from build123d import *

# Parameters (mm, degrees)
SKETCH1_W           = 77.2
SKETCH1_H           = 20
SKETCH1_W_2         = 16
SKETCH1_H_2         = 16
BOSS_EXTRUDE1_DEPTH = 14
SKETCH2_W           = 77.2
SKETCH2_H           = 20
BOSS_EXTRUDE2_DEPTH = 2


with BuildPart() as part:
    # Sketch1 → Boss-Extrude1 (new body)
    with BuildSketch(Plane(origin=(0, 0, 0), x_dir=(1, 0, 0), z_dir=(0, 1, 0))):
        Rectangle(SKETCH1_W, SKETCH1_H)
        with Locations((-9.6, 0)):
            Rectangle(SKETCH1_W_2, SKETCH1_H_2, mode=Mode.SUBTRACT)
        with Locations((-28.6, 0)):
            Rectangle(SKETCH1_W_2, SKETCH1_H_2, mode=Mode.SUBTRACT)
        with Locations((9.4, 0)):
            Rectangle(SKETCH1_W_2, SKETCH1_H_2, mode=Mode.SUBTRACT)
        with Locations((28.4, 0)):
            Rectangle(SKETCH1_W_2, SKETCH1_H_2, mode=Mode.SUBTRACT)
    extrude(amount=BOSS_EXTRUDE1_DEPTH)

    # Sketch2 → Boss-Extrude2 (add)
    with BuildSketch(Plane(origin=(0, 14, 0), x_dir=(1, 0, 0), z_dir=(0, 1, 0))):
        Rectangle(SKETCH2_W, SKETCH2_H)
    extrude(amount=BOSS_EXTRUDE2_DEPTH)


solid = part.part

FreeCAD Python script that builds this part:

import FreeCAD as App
import Part
import Sketcher


def add_polygon(sketch, points):
    """Adds a closed chain of lines whose ends are joined by coincident constraints."""
    first, n = sketch.GeometryCount, len(points)
    for a, b in zip(points, points[1:] + points[:1]):
        sketch.addGeometry(Part.LineSegment(App.Vector(*a, 0), App.Vector(*b, 0)), False)
    for i in range(n):
        sketch.addConstraint(Sketcher.Constraint("Coincident", first + i, 2, first + (i + 1) % n, 1))

doc = App.newDocument("Part")
body = doc.addObject("PartDesign::Body", "Body")

# Sketch on XZ plane
sketch1 = body.newObject("Sketcher::SketchObject", "Sketch")
sketch1.AttachmentSupport = (doc.getObject("XZ_Plane"), [""])
sketch1.MapMode = "FlatFace"
add_polygon(sketch1, [(-39, -10), (-39, 10), (39, 10), (39, -10)])  # lines 0-3
add_polygon(sketch1, [(-21, 8), (-37, 8), (-37, -8), (-21, -8)])  # lines 4-7
add_polygon(sketch1, [(-2, 8), (-18, 8), (-18, -8), (-2, -8)])  # lines 8-11
add_polygon(sketch1, [(17, 8), (1, 8), (1, -8), (17, -8)])  # lines 12-15
add_polygon(sketch1, [(36, 8), (20, 8), (20, -8), (36, -8)])  # lines 16-19
sketch1.addConstraint(Sketcher.Constraint("Vertical", 0))
sketch1.addConstraint(Sketcher.Constraint("Horizontal", 1))
sketch1.addConstraint(Sketcher.Constraint("Vertical", 2))
sketch1.addConstraint(Sketcher.Constraint("Horizontal", 3))
sketch1.addConstraint(Sketcher.Constraint("Horizontal", 4))
sketch1.addConstraint(Sketcher.Constraint("Vertical", 5))
sketch1.addConstraint(Sketcher.Constraint("Horizontal", 6))
sketch1.addConstraint(Sketcher.Constraint("Vertical", 7))
sketch1.addConstraint(Sketcher.Constraint("Horizontal", 8))
sketch1.addConstraint(Sketcher.Constraint("Vertical", 9))
sketch1.addConstraint(Sketcher.Constraint("Horizontal", 10))
sketch1.addConstraint(Sketcher.Constraint("Vertical", 11))
sketch1.addConstraint(Sketcher.Constraint("Horizontal", 12))
sketch1.addConstraint(Sketcher.Constraint("Vertical", 13))
sketch1.addConstraint(Sketcher.Constraint("Horizontal", 14))
sketch1.addConstraint(Sketcher.Constraint("Vertical", 15))
sketch1.addConstraint(Sketcher.Constraint("Horizontal", 16))
sketch1.addConstraint(Sketcher.Constraint("Vertical", 17))
sketch1.addConstraint(Sketcher.Constraint("Horizontal", 18))
sketch1.addConstraint(Sketcher.Constraint("Vertical", 19))
sketch1.addConstraint(Sketcher.Constraint("Symmetric", 0, 2, 2, 2, -1, 1))
sketch1.addConstraint(Sketcher.Constraint("Horizontal", 7, 2, 8, 2))
sketch1.addConstraint(Sketcher.Constraint("Horizontal", 6, 2, 9, 2))
sketch1.addConstraint(Sketcher.Constraint("Horizontal", 11, 2, 12, 2))
sketch1.addConstraint(Sketcher.Constraint("Horizontal", 10, 2, 13, 2))
sketch1.addConstraint(Sketcher.Constraint("Horizontal", 15, 2, 16, 2))
sketch1.addConstraint(Sketcher.Constraint("Horizontal", 14, 2, 17, 2))
sketch1.addConstraint(Sketcher.Constraint("Equal", 6, 8))
sketch1.addConstraint(Sketcher.Constraint("Equal", 10, 12))
sketch1.addConstraint(Sketcher.Constraint("Equal", 14, 16))
sketch1.addConstraint(Sketcher.Constraint("Equal", 18, 5))
sketch1.addConstraint(Sketcher.Constraint("DistanceX", 4, 2, 4, 1, 16.0))
sketch1.addConstraint(Sketcher.Constraint("DistanceY", 0, 1, 0, 2, 20.0))
sketch1.addConstraint(Sketcher.Constraint("DistanceX", 1, 1, 1, 2, 77.2))
sketch1.addConstraint(Sketcher.Constraint("DistanceY", -1, 1, 4, 2, 8.0))
sketch1.addConstraint(Sketcher.Constraint("DistanceX", 0, 2, 4, 2, 2.0))
sketch1.addConstraint(Sketcher.Constraint("DistanceX", 7, 2, 8, 2, 3.0))
sketch1.addConstraint(Sketcher.Constraint("DistanceX", 11, 2, 12, 2, 3.0))
sketch1.addConstraint(Sketcher.Constraint("DistanceX", 15, 2, 16, 2, 3.0))
pad1 = body.newObject("PartDesign::Pad", "Pad")
pad1.Profile = sketch1
pad1.Length = 14
pad1.Reversed = True

# Sketch on XZ plane
sketch2 = body.newObject("Sketcher::SketchObject", "Sketch001")
sketch2.AttachmentSupport = (doc.getObject("XZ_Plane"), [""])
sketch2.MapMode = "FlatFace"
sketch2.AttachmentOffset = App.Placement(App.Vector(0, 0, -14), App.Rotation())
add_polygon(sketch2, [(-39, -10), (-39, 10), (39, 10), (39, -10)])  # lines 0-3
sketch2.addConstraint(Sketcher.Constraint("Vertical", 0))
sketch2.addConstraint(Sketcher.Constraint("Horizontal", 1))
sketch2.addConstraint(Sketcher.Constraint("Vertical", 2))
sketch2.addConstraint(Sketcher.Constraint("Horizontal", 3))
sketch2.addConstraint(Sketcher.Constraint("Symmetric", 0, 2, 2, 2, -1, 1))
sketch2.addConstraint(Sketcher.Constraint("DistanceY", 0, 1, 0, 2, 20.0))
sketch2.addConstraint(Sketcher.Constraint("DistanceX", 1, 1, 1, 2, 77.2))
pad2 = body.newObject("PartDesign::Pad", "Pad001")
pad2.Profile = sketch2
pad2.Length = 2
pad2.Reversed = True

doc.recompute()
